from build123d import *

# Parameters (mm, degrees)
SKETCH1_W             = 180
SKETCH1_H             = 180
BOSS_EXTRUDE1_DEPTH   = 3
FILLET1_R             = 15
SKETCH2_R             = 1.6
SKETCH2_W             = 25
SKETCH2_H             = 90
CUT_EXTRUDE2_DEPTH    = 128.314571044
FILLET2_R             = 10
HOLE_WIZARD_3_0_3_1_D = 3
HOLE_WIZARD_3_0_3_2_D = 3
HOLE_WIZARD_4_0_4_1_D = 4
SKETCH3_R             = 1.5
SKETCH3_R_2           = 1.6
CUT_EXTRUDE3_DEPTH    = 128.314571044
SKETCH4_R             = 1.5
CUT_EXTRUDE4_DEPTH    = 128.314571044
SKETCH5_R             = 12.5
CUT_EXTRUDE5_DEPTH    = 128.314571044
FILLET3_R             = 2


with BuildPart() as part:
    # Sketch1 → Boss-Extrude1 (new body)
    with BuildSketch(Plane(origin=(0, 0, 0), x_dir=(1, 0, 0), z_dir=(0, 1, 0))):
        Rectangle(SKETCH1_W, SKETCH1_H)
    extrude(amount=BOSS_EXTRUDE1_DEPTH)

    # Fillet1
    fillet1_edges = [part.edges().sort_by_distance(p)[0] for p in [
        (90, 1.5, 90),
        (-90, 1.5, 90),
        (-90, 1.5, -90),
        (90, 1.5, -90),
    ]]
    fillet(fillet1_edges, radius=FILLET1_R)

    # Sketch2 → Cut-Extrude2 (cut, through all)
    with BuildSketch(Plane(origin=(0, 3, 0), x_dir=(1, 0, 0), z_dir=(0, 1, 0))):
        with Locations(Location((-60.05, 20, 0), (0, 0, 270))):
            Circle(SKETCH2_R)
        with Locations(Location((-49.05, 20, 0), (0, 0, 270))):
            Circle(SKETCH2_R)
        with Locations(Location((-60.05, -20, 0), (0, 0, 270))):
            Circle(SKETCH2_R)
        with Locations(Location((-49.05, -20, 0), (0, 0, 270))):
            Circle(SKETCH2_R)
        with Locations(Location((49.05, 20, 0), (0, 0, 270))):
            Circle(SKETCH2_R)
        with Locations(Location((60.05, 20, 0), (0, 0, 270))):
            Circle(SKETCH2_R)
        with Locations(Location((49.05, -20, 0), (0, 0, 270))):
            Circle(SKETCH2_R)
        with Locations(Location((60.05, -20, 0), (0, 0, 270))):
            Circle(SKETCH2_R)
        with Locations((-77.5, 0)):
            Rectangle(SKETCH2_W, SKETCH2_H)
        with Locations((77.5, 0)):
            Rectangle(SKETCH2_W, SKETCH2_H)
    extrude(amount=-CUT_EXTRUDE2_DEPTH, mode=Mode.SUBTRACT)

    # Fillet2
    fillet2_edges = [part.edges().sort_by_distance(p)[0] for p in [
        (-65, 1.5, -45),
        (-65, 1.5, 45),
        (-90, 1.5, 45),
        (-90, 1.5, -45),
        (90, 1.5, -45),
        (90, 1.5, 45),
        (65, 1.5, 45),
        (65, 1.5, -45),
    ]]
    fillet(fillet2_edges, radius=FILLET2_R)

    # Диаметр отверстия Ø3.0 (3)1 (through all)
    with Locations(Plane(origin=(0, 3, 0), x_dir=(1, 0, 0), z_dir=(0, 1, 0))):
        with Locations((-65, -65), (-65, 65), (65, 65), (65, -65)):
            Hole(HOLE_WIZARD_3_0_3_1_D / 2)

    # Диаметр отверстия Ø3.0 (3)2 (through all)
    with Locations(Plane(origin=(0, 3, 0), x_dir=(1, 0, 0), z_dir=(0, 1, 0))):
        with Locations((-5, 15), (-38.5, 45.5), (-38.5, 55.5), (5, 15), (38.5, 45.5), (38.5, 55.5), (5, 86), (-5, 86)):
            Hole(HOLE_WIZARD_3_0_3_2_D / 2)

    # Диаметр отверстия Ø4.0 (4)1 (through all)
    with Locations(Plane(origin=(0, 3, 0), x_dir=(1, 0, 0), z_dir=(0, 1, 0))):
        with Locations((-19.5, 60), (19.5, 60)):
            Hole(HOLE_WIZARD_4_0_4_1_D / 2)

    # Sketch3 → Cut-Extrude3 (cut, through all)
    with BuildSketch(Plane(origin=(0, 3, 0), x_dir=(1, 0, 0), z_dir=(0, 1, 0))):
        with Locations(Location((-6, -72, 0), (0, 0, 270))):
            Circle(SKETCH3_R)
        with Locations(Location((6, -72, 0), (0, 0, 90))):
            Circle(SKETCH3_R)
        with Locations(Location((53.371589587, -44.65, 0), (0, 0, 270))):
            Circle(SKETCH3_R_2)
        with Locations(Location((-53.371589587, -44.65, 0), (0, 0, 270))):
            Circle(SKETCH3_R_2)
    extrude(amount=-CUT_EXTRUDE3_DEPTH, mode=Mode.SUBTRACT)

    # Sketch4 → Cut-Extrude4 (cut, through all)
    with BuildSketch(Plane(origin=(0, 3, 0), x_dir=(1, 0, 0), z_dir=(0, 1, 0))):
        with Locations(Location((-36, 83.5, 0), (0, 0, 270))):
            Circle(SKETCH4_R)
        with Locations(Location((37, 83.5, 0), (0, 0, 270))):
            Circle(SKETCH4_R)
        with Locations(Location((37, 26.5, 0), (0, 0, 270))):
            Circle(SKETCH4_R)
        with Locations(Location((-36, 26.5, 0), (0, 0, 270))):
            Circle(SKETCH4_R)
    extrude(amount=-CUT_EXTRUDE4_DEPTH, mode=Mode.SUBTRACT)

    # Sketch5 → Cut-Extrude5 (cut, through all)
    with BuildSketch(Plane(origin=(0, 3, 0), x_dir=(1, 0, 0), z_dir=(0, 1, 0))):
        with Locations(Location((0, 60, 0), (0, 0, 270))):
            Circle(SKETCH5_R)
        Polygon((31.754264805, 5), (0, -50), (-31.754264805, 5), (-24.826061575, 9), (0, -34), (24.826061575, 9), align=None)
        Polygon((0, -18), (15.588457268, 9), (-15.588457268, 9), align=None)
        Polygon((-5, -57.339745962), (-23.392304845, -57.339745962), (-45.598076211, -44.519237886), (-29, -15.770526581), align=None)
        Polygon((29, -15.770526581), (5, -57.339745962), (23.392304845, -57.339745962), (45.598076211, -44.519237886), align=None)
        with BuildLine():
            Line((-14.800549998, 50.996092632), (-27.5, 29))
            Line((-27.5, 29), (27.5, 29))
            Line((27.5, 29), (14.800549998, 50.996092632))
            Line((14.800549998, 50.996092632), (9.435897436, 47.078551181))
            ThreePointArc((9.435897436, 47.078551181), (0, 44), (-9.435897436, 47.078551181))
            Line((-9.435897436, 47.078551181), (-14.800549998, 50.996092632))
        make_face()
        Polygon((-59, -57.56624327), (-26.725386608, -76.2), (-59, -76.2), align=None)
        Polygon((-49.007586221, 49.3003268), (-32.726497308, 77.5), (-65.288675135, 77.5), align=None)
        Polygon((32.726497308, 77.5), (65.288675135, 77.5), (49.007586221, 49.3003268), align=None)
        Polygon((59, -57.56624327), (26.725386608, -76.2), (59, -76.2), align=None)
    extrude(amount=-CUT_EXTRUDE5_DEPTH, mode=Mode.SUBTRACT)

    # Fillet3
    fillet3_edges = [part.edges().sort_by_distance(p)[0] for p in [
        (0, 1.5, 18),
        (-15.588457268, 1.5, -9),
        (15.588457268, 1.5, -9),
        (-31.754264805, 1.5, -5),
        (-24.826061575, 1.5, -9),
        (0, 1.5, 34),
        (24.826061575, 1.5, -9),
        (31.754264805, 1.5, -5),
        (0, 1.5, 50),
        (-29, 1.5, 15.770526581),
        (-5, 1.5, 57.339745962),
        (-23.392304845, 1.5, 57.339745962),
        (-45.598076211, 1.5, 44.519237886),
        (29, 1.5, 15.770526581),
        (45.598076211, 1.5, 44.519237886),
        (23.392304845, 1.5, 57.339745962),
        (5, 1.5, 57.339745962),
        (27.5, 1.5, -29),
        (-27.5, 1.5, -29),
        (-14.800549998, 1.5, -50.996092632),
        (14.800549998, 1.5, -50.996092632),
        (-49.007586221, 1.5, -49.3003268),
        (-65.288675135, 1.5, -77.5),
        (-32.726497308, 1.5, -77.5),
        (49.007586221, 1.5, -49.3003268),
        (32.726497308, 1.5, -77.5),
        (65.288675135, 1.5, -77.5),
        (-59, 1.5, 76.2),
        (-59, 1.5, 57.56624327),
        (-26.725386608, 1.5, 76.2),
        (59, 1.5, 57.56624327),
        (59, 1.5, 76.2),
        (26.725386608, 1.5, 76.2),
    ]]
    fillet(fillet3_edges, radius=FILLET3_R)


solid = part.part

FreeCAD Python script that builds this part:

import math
import FreeCAD as App
import Part
import Sketcher
from FreeCAD import Vector
Q = App.Units.Quantity


def edges_at(feature, points):
    """Names of the edges that pass closest to the given points."""
    edges = feature.Shape.Edges
    near = lambda p: min(range(len(edges)), key=lambda i: edges[i].distToShape(Part.Vertex(*p))[0])
    return sorted({f"Edge{near(p) + 1}" for p in points})


def add_polygon(sketch, points):
    """Adds a closed chain of lines whose ends are joined by coincident constraints."""
    first, n = sketch.GeometryCount, len(points)
    for a, b in zip(points, points[1:] + points[:1]):
        sketch.addGeometry(Part.LineSegment(App.Vector(*a, 0), App.Vector(*b, 0)), False)
    for i in range(n):
        sketch.addConstraint(Sketcher.Constraint("Coincident", first + i, 2, first + (i + 1) % n, 1))

doc = App.newDocument("Part")
params = doc.addObject("Spreadsheet::Sheet", "Params")
for row, (alias, value) in enumerate([
    ("sketch1_width", "180 mm"),
    ("pad1_length", "3 mm"),
    ("fillet_radius", "15 mm"),
    ("sketch2_diameter", "3.2 mm"),
    ("sketch2_width", "25 mm"),
    ("sketch2_height", "90 mm"),
    ("fillet2_radius", "10 mm"),
    ("sketch3_diameter", "3 mm"),
    ("hole_diameter", "3 mm"),
    ("sketch4_diameter", "3 mm"),
    ("hole2_diameter", "3 mm"),
    ("sketch5_diameter", "4 mm"),
    ("hole3_diameter", "4 mm"),
    ("sketch6_diameter", "3 mm"),
    ("sketch6_diameter2", "3.2 mm"),
    ("sketch7_diameter", "3 mm"),
    ("sketch8_diameter", "25 mm"),
    ("sketch8_radius", "16 mm"),
    ("sketch8_width", "55 mm"),
    ("sketch8_length", "8 mm"),
    ("sketch8_length2", "48 mm"),
    ("fillet3_radius", "2 mm"),
], start=1):
    params.set(f"A{row}", alias)
    params.set(f"B{row}", "=" + value)
    params.setAlias(f"B{row}", alias)

body = doc.addObject("PartDesign::Body", "Body")

# Sketch on XZ plane
sketch1 = body.newObject("Sketcher::SketchObject", "Sketch")
sketch1.AttachmentSupport = (doc.getObject("XZ_Plane"), [""])
sketch1.MapMode = "FlatFace"
add_polygon(sketch1, [(-90, -90), (-90, 90), (90, 90), (90, -90)])  # lines 0-3
sketch1.addConstraint([
    Sketcher.Constraint("Vertical", 0),
    Sketcher.Constraint("Horizontal", 1),
    Sketcher.Constraint("Vertical", 2),
    Sketcher.Constraint("Horizontal", 3),
    Sketcher.Constraint("Symmetric", 0, 2, 2, 2, -1, 1),
    Sketcher.Constraint("Equal", 3, 0),
    Sketcher.Constraint("DistanceX", 1, 1, 1, 2, 180.0),
])
sketch1.setExpression("Constraints[10]", "Params.sketch1_width")
pad1 = body.newObject("PartDesign::Pad", "Pad")
pad1.Profile = sketch1
pad1.setExpression("Length", "Params.pad1_length")
pad1.Reversed = True
doc.recompute()

fillet = body.newObject("PartDesign::Fillet", "Fillet")
fillet.Base = (pad1, edges_at(pad1, [
    (90, 1.5, 90),
    (-90, 1.5, 90),
    (-90, 1.5, -90),
    (90, 1.5, -90),
]))
fillet.setExpression("Radius", "Params.fillet_radius")

# Sketch on XZ plane
sketch2 = body.newObject("Sketcher::SketchObject", "Sketch001")
sketch2.AttachmentSupport = (doc.getObject("XZ_Plane"), [""])
sketch2.MapMode = "FlatFace"
sketch2.AttachmentOffset = App.Placement(Vector(0, 0, -3), App.Rotation())
sketch2.addGeometry(Part.Circle(Vector(-60.05, -20, 0), Vector(0, 0, 1), 1.6), False)  # 0
sketch2.addGeometry(Part.Circle(Vector(-49.05, -20, 0), Vector(0, 0, 1), 1.6), False)  # 1
sketch2.addGeometry(Part.Circle(Vector(-60.05, 20, 0), Vector(0, 0, 1), 1.6), False)  # 2
sketch2.addGeometry(Part.Circle(Vector(-49.05, 20, 0), Vector(0, 0, 1), 1.6), False)  # 3
sketch2.addGeometry(Part.Circle(Vector(49.05, -20, 0), Vector(0, 0, 1), 1.6), False)  # 4
sketch2.addGeometry(Part.Circle(Vector(60.05, -20, 0), Vector(0, 0, 1), 1.6), False)  # 5
sketch2.addGeometry(Part.Circle(Vector(49.05, 20, 0), Vector(0, 0, 1), 1.6), False)  # 6
sketch2.addGeometry(Part.Circle(Vector(60.05, 20, 0), Vector(0, 0, 1), 1.6), False)  # 7
add_polygon(sketch2, [(-90, -45), (-90, 45), (-65, 45), (-65, -45)])  # lines 8-11
add_polygon(sketch2, [(65, -45), (65, 45), (90, 45), (90, -45)])  # lines 12-15
sketch2.addConstraint([
    Sketcher.Constraint("Vertical", 8),
    Sketcher.Constraint("Horizontal", 9),
    Sketcher.Constraint("Vertical", 10),
    Sketcher.Constraint("Horizontal", 11),
    Sketcher.Constraint("Vertical", 12),
    Sketcher.Constraint("Horizontal", 13),
    Sketcher.Constraint("Vertical", 14),
    Sketcher.Constraint("Horizontal", 15),
    Sketcher.Constraint("Equal", 0, 1),
    Sketcher.Constraint("Equal", 1, 2),
    Sketcher.Constraint("Equal", 2, 3),
    Sketcher.Constraint("Equal", 3, 4),
    Sketcher.Constraint("Equal", 4, 5),
    Sketcher.Constraint("Equal", 5, 6),
    Sketcher.Constraint("Equal", 6, 7),
    Sketcher.Constraint("Symmetric", 3, 3, 4, 3, -1, 1),
    Sketcher.Constraint("Symmetric", 2, 3, 5, 3, -1, 1),
    Sketcher.Constraint("Symmetric", 1, 3, 6, 3, -1, 1),
    Sketcher.Constraint("Symmetric", 0, 3, 7, 3, -1, 1),
    Sketcher.Constraint("Symmetric", 10, 2, 12, 2, -1, 1),
    Sketcher.Constraint("Symmetric", 8, 2, 14, 2, -1, 1),
    Sketcher.Constraint("Symmetric", 1, 3, 4, 3, -2),
    Sketcher.Constraint("Symmetric", 0, 3, 5, 3, -2),
    Sketcher.Constraint("Horizontal", 0, 3, 1, 3),
    Sketcher.Constraint("Horizontal", 9, 2, 12, 2),
    Sketcher.Constraint("Diameter", 0, 3.2),
    Sketcher.Constraint("DistanceX", 9, 1, 9, 2, 25.0),
    Sketcher.Constraint("DistanceY", 8, 1, 8, 2, 90.0),
    Sketcher.Constraint("DistanceY", 0, 3, -1, 1, 20.0),
    Sketcher.Constraint("DistanceX", 8, 2, -1, 1, 90.0),
    Sketcher.Constraint("DistanceX", 0, 3, 1, 3, 11.0),
    Sketcher.Constraint("DistanceX", 1, 3, 4, 3, 98.1),
])
sketch2.setExpression("Constraints[33]", "Params.sketch2_diameter")
sketch2.setExpression("Constraints[34]", "Params.sketch2_width")
sketch2.setExpression("Constraints[35]", "Params.sketch2_height")
pocket1 = body.newObject("PartDesign::Pocket", "Pocket")
pocket1.Profile = sketch2
pocket1.Type = "ThroughAll"
pocket1.Reversed = True
doc.recompute()

fillet2 = body.newObject("PartDesign::Fillet", "Fillet001")
fillet2.Base = (pocket1, edges_at(pocket1, [
    (-65, 1.5, -45),
    (-65, 1.5, 45),
    (-90, 1.5, 45),
    (-90, 1.5, -45),
    (90, 1.5, -45),
    (90, 1.5, 45),
    (65, 1.5, 45),
    (65, 1.5, -45),
]))
fillet2.setExpression("Radius", "Params.fillet2_radius")

# Sketch on XZ plane
sketch3 = body.newObject("Sketcher::SketchObject", "Sketch002")
sketch3.AttachmentSupport = (doc.getObject("XZ_Plane"), [""])
sketch3.MapMode = "FlatFace"
sketch3.AttachmentOffset = App.Placement(Vector(0, 0, -3), App.Rotation())
sketch3.addGeometry([
    Part.Circle(Vector(-65, 65, 0), Vector(0, 0, 1), 1.5),
    Part.Circle(Vector(-65, -65, 0), Vector(0, 0, 1), 1.5),
    Part.Circle(Vector(65, -65, 0), Vector(0, 0, 1), 1.5),
    Part.Circle(Vector(65, 65, 0), Vector(0, 0, 1), 1.5),
], False)
sketch3.addConstraint([
    Sketcher.Constraint("Equal", 0, 1),
    Sketcher.Constraint("Equal", 1, 2),
    Sketcher.Constraint("Equal", 2, 3),
    Sketcher.Constraint("Symmetric", 0, 3, 2, 3, -1, 1),
    Sketcher.Constraint("Symmetric", 1, 3, 3, 3, -1, 1),
    Sketcher.Constraint("Symmetric", 1, 3, 2, 3, -2),
    Sketcher.Constraint("Diameter", 0, 3.0),
    Sketcher.Constraint("DistanceX", 0, 3, -1, 1, 65.0),
    Sketcher.Constraint("DistanceY", -1, 1, 0, 3, 65.0),
])
sketch3.setExpression("Constraints[6]", "Params.sketch3_diameter")
doc.recompute()
hole = body.newObject("PartDesign::Hole", "Hole")
hole.Profile = sketch3
hole.ThreadType = "None"
hole.setExpression("Diameter", "Params.hole_diameter")
hole.DepthType = "ThroughAll"
hole.Reversed = True

# Sketch on XZ plane
sketch4 = body.newObject("Sketcher::SketchObject", "Sketch003")
sketch4.AttachmentSupport = (doc.getObject("XZ_Plane"), [""])
sketch4.MapMode = "FlatFace"
sketch4.AttachmentOffset = App.Placement(Vector(0, 0, -3), App.Rotation())
sketch4.addGeometry([
    Part.Circle(Vector(-5, -15, 0), Vector(0, 0, 1), 1.5),  # 0
    Part.Circle(Vector(-38.5, -45.5, 0), Vector(0, 0, 1), 1.5),  # 1
    Part.Circle(Vector(-38.5, -55.5, 0), Vector(0, 0, 1), 1.5),  # 2
    Part.Circle(Vector(5, -15, 0), Vector(0, 0, 1), 1.5),  # 3
    Part.Circle(Vector(38.5, -45.5, 0), Vector(0, 0, 1), 1.5),  # 4
    Part.Circle(Vector(38.5, -55.5, 0), Vector(0, 0, 1), 1.5),  # 5
    Part.Circle(Vector(5, -86, 0), Vector(0, 0, 1), 1.5),  # 6
    Part.Circle(Vector(-5, -86, 0), Vector(0, 0, 1), 1.5),  # 7
], False)
sketch4.addConstraint([
    Sketcher.Constraint("Equal", 0, 1),
    Sketcher.Constraint("Equal", 1, 2),
    Sketcher.Constraint("Equal", 2, 3),
    Sketcher.Constraint("Equal", 3, 4),
    Sketcher.Constraint("Equal", 4, 5),
    Sketcher.Constraint("Equal", 5, 6),
    Sketcher.Constraint("Equal", 6, 7),
    Sketcher.Constraint("Symmetric", 0, 3, 3, 3, -2),
    Sketcher.Constraint("Symmetric", 1, 3, 4, 3, -2),
    Sketcher.Constraint("Symmetric", 2, 3, 5, 3, -2),
    Sketcher.Constraint("Symmetric", 6, 3, 7, 3, -2),
    Sketcher.Constraint("Vertical", 1, 3, 2, 3),
    Sketcher.Constraint("Vertical", 3, 3, 6, 3),
    Sketcher.Constraint("Diameter", 0, 3.0),
    Sketcher.Constraint("DistanceX", 0, 3, -1, 1, 5.0),
    Sketcher.Constraint("DistanceY", 0, 3, -1, 1, 15.0),
    Sketcher.Constraint("DistanceY", 6, 3, -1, 1, 86.0),
    Sketcher.Constraint("DistanceY", 2, 3, 1, 3, 10.0),
    Sketcher.Constraint("DistanceX", 1, 3, 4, 3, 77.0),
    Sketcher.Constraint("DistanceY", 1, 3, -1, 1, 45.5),
])
sketch4.setExpression("Constraints[13]", "Params.sketch4_diameter")
doc.recompute()
hole2 = body.newObject("PartDesign::Hole", "Hole001")
hole2.Profile = sketch4
hole2.ThreadType = "None"
hole2.setExpression("Diameter", "Params.hole2_diameter")
hole2.DepthType = "ThroughAll"
hole2.Reversed = True

# Sketch on XZ plane
sketch5 = body.newObject("Sketcher::SketchObject", "Sketch004")
sketch5.AttachmentSupport = (doc.getObject("XZ_Plane"), [""])
sketch5.MapMode = "FlatFace"
sketch5.AttachmentOffset = App.Placement(Vector(0, 0, -3), App.Rotation())
sketch5.addGeometry([
    Part.Circle(Vector(-19.5, -60, 0), Vector(0, 0, 1), 2),
    Part.Circle(Vector(19.5, -60, 0), Vector(0, 0, 1), 2),
], False)
sketch5.addConstraint([
    Sketcher.Constraint("Equal", 0, 1),
    Sketcher.Constraint("Symmetric", 0, 3, 1, 3, -2),
    Sketcher.Constraint("Diameter", 0, 4.0),
    Sketcher.Constraint("DistanceY", 0, 3, -1, 1, 60.0),
    Sketcher.Constraint("DistanceX", 0, 3, 1, 3, 39.0),
])
sketch5.setExpression("Constraints[2]", "Params.sketch5_diameter")
doc.recompute()
hole3 = body.newObject("PartDesign::Hole", "Hole002")
hole3.Profile = sketch5
hole3.ThreadType = "None"
hole3.setExpression("Diameter", "Params.hole3_diameter")
hole3.DepthType = "ThroughAll"
hole3.Reversed = True

# Sketch on XZ plane
sketch6 = body.newObject("Sketcher::SketchObject", "Sketch005")
sketch6.AttachmentSupport = (doc.getObject("XZ_Plane"), [""])
sketch6.MapMode = "FlatFace"
sketch6.AttachmentOffset = App.Placement(Vector(0, 0, -3), App.Rotation())
sketch6.addGeometry([
    Part.Circle(Vector(-6, 72, 0), Vector(0, 0, 1), 1.5),
    Part.Circle(Vector(6, 72, 0), Vector(0, 0, 1), 1.5),
    Part.Circle(Vector(53.37159, 44.65, 0), Vector(0, 0, 1), 1.6),
    Part.Circle(Vector(-53.37159, 44.65, 0), Vector(0, 0, 1), 1.6),
], False)
sketch6.addConstraint([
    Sketcher.Constraint("Equal", 0, 1),
    Sketcher.Constraint("Equal", 2, 3),
    Sketcher.Constraint("Symmetric", 0, 3, 1, 3, -2),
    Sketcher.Constraint("Symmetric", 2, 3, 3, 3, -2),
    Sketcher.Constraint("Diameter", 0, 3.0),
    Sketcher.Constraint("Diameter", 2, 3.2),
    Sketcher.Constraint("DistanceX", 0, 3, -1, 1, 6.0),
    Sketcher.Constraint("DistanceY", -1, 1, 0, 3, 72.0),
    Sketcher.Constraint("DistanceY", -1, 1, 2, 3, 44.65),
    Sketcher.Constraint("DistanceX", -1, 1, 2, 3, 53.37159),
])
sketch6.setExpression("Constraints[4]", "Params.sketch6_diameter")
sketch6.setExpression("Constraints[5]", "Params.sketch6_diameter2")
pocket2 = body.newObject("PartDesign::Pocket", "Pocket001")
pocket2.Profile = sketch6
pocket2.Type = "ThroughAll"
pocket2.Reversed = True

# Sketch on XZ plane
sketch7 = body.newObject("Sketcher::SketchObject", "Sketch006")
sketch7.AttachmentSupport = (doc.getObject("XZ_Plane"), [""])
sketch7.MapMode = "FlatFace"
sketch7.AttachmentOffset = App.Placement(Vector(0, 0, -3), App.Rotation())
sketch7.addGeometry([
    Part.Circle(Vector(-36, -83.5, 0), Vector(0, 0, 1), 1.5),
    Part.Circle(Vector(37, -83.5, 0), Vector(0, 0, 1), 1.5),
    Part.Circle(Vector(37, -26.5, 0), Vector(0, 0, 1), 1.5),
    Part.Circle(Vector(-36, -26.5, 0), Vector(0, 0, 1), 1.5),
], False)
sketch7.addConstraint([
    Sketcher.Constraint("Equal", 0, 1),
    Sketcher.Constraint("Equal", 1, 2),
    Sketcher.Constraint("Equal", 2, 3),
    Sketcher.Constraint("Horizontal", 0, 3, 1, 3),
    Sketcher.Constraint("Horizontal", 2, 3, 3, 3),
    Sketcher.Constraint("Vertical", 1, 3, 2, 3),
    Sketcher.Constraint("Vertical", 0, 3, 3, 3),
    Sketcher.Constraint("Diameter", 0, 3.0),
    Sketcher.Constraint("DistanceX", 0, 3, -1, 1, 36.0),
    Sketcher.Constraint("DistanceX", -1, 1, 1, 3, 37.0),
    Sketcher.Constraint("DistanceY", 1, 3, 2, 3, 57.0),
    Sketcher.Constraint("DistanceY", 0, 3, -1, 1, 83.5),
])
sketch7.setExpression("Constraints[7]", "Params.sketch7_diameter")
pocket3 = body.newObject("PartDesign::Pocket", "Pocket002")
pocket3.Profile = sketch7
pocket3.Type = "ThroughAll"
pocket3.Reversed = True

# Sketch on XZ plane
sketch8 = body.newObject("Sketcher::SketchObject", "Sketch007")
sketch8.AttachmentSupport = (doc.getObject("XZ_Plane"), [""])
sketch8.MapMode = "FlatFace"
sketch8.AttachmentOffset = App.Placement(Vector(0, 0, -3), App.Rotation())
sketch8.addGeometry(Part.Circle(Vector(0, -60, 0), Vector(0, 0, 1), 12.5), False)  # 0
add_polygon(sketch8, [(0, 50), (31.754265, -5), (24.826062, -9), (0, 34), (-24.826062, -9), (-31.754265, -5)])  # lines 1-6
add_polygon(sketch8, [(0, 18), (15.588457, -9), (-15.588457, -9)])  # lines 7-9
add_polygon(sketch8, [(-23.392305, 57.339746), (-5, 57.339746), (-29, 15.770527), (-45.598076, 44.519238)])  # lines 10-13
add_polygon(sketch8, [(29, 15.770527), (5, 57.339746), (23.392305, 57.339746), (45.598076, 44.519238)])  # lines 14-17
sketch8.addGeometry(Part.LineSegment(Vector(-14.80055, -50.996093, 0), Vector(-27.5, -29, 0)), False)  # 18
sketch8.addGeometry(Part.LineSegment(Vector(-27.5, -29, 0), Vector(27.5, -29, 0)), False)  # 19
sketch8.addGeometry(Part.LineSegment(Vector(27.5, -29, 0), Vector(14.80055, -50.996093, 0)), False)  # 20
sketch8.addGeometry(Part.LineSegment(Vector(14.80055, -50.996093, 0), Vector(9.435897, -47.078551, 0)), False)  # 21
sketch8.addGeometry(Part.ArcOfCircle(Part.Circle(Vector(0, -60, 0), Vector(0, 0, 1), 16), math.radians(53.861185), math.radians(126.138815)), False)  # 22
sketch8.addGeometry(Part.LineSegment(Vector(-9.435897, -47.078551, 0), Vector(-14.80055, -50.996093, 0)), False)  # 23
add_polygon(sketch8, [(-26.725387, 76.2), (-59, 57.566243), (-59, 76.2)])  # lines 24-26
add_polygon(sketch8, [(-49.007586, -49.300327), (-32.726497, -77.5), (-65.288675, -77.5)])  # lines 27-29
add_polygon(sketch8, [(65.288675, -77.5), (32.726497, -77.5), (49.007586, -49.300327)])  # lines 30-32
add_polygon(sketch8, [(59, 57.566243), (26.725387, 76.2), (59, 76.2)])  # lines 33-35
sketch8.addConstraint([
    Sketcher.Constraint("Coincident", 18, 2, 19, 1),
    Sketcher.Constraint("Coincident", 19, 2, 20, 1),
    Sketcher.Constraint("Coincident", 20, 2, 21, 1),
    Sketcher.Constraint("Tangent", 21, 2, 22, 1),
    Sketcher.Constraint("Tangent", 22, 2, 23, 1),
    Sketcher.Constraint("Coincident", 23, 2, 18, 1),
    Sketcher.Constraint("Horizontal", 8),
    Sketcher.Constraint("Horizontal", 10),
    Sketcher.Constraint("Horizontal", 15),
    Sketcher.Constraint("Horizontal", 19),
    Sketcher.Constraint("Vertical", 25),
    Sketcher.Constraint("Horizontal", 26),
    Sketcher.Constraint("Horizontal", 28),
    Sketcher.Constraint("Horizontal", 30),
    Sketcher.Constraint("Horizontal", 34),
    Sketcher.Constraint("Vertical", 35),
    Sketcher.Constraint("Coincident", 22, 3, 0, 3),
    Sketcher.Constraint("Symmetric", 2, 2, 4, 2, -2),
    Sketcher.Constraint("Symmetric", 1, 2, 5, 2, -2),
    Sketcher.Constraint("Symmetric", 10, 2, 14, 2, -2),
    Sketcher.Constraint("Symmetric", 12, 2, 16, 2, -2),
    Sketcher.Constraint("Symmetric", 11, 2, 17, 2, -2),
    Sketcher.Constraint("Symmetric", 21, 2, 22, 2, -2),
    Sketcher.Constraint("Symmetric", 27, 2, 30, 2, -2),
    Sketcher.Constraint("Symmetric", 29, 2, 31, 2, -2),
    Sketcher.Constraint("Symmetric", 26, 2, 33, 2, -2),
    Sketcher.Constraint("Symmetric", 24, 2, 35, 2, -2),
    Sketcher.Constraint("PointOnObject", 3, 2, -2),
    Sketcher.Constraint("PointOnObject", 6, 2, -2),
    Sketcher.Constraint("PointOnObject", 9, 2, -2),
    Sketcher.Constraint("Perpendicular", 1, 2),
    Sketcher.Constraint("Perpendicular", 2, 3),
    Sketcher.Constraint("Parallel", 3, 7),
    Sketcher.Constraint("Parallel", 6, 9),
    Sketcher.Constraint("Parallel", 9, 11),
    Sketcher.Constraint("Parallel", 7, 12),
    Sketcher.Constraint("Perpendicular", 12, 13),
    Sketcher.Constraint("Perpendicular", 11, 16),
    Sketcher.Constraint("Parallel", 14, 18),
    Sketcher.Constraint("Parallel", 17, 20),
    Sketcher.Constraint("Perpendicular", 18, 24),
    Sketcher.Constraint("Perpendicular", 24, 27),
    Sketcher.Constraint("Parallel", 20, 29),
    Sketcher.Constraint("Parallel", 27, 32),
    Sketcher.Constraint("Horizontal", 4, 2, 7, 2),
    Sketcher.Constraint("Horizontal", 20, 2, 23, 2),
    Sketcher.Constraint("Diameter", 0, 25.0),
    Sketcher.Constraint("Radius", 22, 16.0),
    Sketcher.Constraint("DistanceX", 19, 1, 19, 2, 55.0),
    Sketcher.Constraint("Angle", 1, Q("-60 deg")),
    Sketcher.Constraint("Distance", 2, 8.0),
    Sketcher.Constraint("Distance", 11, 48.0),
    Sketcher.Constraint("DistanceY", 0, 3, -1, 1, 60.0),
    Sketcher.Constraint("DistanceY", 1, 2, -1, 1, 5.0),
    Sketcher.Constraint("DistanceY", -1, 1, 3, 2, 34.0),
    Sketcher.Constraint("DistanceY", -1, 1, 9, 2, 18.0),
    Sketcher.Constraint("DistanceX", 10, 2, -1, 1, 5.0),
    Sketcher.Constraint("DistanceY", 18, 2, -1, 1, 29.0),
    Sketcher.Constraint("DistanceX", 24, 2, -1, 1, 59.0),
    Sketcher.Constraint("DistanceY", -1, 1, 25, 2, 76.2),
    Sketcher.Constraint("DistanceY", 27, 2, -1, 1, 77.5),
    Sketcher.Constraint("Distance", 18, 25.3989),
    Sketcher.Constraint("DistanceX", 27, 2, 22, 2, 23.2906),
    Sketcher.Constraint("DistanceX", 10, 1, 10, 2, 18.392305),
    Sketcher.Constraint("DistanceX", 26, 1, 26, 2, 32.274613),
    Sketcher.Constraint("DistanceX", 28, 2, 28, 1, 32.562178),
    Sketcher.Constraint("DistanceY", -1, 1, 10, 2, 57.339746),
])
sketch8.setExpression("Constraints[75]", "Params.sketch8_diameter")
sketch8.setExpression("Constraints[76]", "Params.sketch8_radius")
sketch8.setExpression("Constraints[77]", "Params.sketch8_width")
sketch8.setExpression("Constraints[79]", "Params.sketch8_length")
sketch8.setExpression("Constraints[80]", "Params.sketch8_length2")
pocket4 = body.newObject("PartDesign::Pocket", "Pocket003")
pocket4.Profile = sketch8
pocket4.Type = "ThroughAll"
pocket4.Reversed = True
doc.recompute()

fillet3 = body.newObject("PartDesign::Fillet", "Fillet002")
fillet3.Base = (pocket4, edges_at(pocket4, [
    (0, 1.5, 18),
    (-15.588, 1.5, -9),
    (15.588, 1.5, -9),
    (-31.754, 1.5, -5),
    (-24.826, 1.5, -9),
    (0, 1.5, 34),
    (24.826, 1.5, -9),
    (31.754, 1.5, -5),
    (0, 1.5, 50),
    (-29, 1.5, 15.771),
    (-5, 1.5, 57.34),
    (-23.392, 1.5, 57.34),
    (-45.598, 1.5, 44.519),
    (29, 1.5, 15.771),
    (45.598, 1.5, 44.519),
    (23.392, 1.5, 57.34),
    (5, 1.5, 57.34),
    (27.5, 1.5, -29),
    (-27.5, 1.5, -29),
    (-14.801, 1.5, -50.996),
    (14.801, 1.5, -50.996),
    (-49.008, 1.5, -49.3),
    (-65.289, 1.5, -77.5),
    (-32.726, 1.5, -77.5),
    (49.008, 1.5, -49.3),
    (32.726, 1.5, -77.5),
    (65.289, 1.5, -77.5),
    (-59, 1.5, 76.2),
    (-59, 1.5, 57.566),
    (-26.725, 1.5, 76.2),
    (59, 1.5, 57.566),
    (59, 1.5, 76.2),
    (26.725, 1.5, 76.2),
]))
fillet3.setExpression("Radius", "Params.fillet3_radius")

doc.recompute()
